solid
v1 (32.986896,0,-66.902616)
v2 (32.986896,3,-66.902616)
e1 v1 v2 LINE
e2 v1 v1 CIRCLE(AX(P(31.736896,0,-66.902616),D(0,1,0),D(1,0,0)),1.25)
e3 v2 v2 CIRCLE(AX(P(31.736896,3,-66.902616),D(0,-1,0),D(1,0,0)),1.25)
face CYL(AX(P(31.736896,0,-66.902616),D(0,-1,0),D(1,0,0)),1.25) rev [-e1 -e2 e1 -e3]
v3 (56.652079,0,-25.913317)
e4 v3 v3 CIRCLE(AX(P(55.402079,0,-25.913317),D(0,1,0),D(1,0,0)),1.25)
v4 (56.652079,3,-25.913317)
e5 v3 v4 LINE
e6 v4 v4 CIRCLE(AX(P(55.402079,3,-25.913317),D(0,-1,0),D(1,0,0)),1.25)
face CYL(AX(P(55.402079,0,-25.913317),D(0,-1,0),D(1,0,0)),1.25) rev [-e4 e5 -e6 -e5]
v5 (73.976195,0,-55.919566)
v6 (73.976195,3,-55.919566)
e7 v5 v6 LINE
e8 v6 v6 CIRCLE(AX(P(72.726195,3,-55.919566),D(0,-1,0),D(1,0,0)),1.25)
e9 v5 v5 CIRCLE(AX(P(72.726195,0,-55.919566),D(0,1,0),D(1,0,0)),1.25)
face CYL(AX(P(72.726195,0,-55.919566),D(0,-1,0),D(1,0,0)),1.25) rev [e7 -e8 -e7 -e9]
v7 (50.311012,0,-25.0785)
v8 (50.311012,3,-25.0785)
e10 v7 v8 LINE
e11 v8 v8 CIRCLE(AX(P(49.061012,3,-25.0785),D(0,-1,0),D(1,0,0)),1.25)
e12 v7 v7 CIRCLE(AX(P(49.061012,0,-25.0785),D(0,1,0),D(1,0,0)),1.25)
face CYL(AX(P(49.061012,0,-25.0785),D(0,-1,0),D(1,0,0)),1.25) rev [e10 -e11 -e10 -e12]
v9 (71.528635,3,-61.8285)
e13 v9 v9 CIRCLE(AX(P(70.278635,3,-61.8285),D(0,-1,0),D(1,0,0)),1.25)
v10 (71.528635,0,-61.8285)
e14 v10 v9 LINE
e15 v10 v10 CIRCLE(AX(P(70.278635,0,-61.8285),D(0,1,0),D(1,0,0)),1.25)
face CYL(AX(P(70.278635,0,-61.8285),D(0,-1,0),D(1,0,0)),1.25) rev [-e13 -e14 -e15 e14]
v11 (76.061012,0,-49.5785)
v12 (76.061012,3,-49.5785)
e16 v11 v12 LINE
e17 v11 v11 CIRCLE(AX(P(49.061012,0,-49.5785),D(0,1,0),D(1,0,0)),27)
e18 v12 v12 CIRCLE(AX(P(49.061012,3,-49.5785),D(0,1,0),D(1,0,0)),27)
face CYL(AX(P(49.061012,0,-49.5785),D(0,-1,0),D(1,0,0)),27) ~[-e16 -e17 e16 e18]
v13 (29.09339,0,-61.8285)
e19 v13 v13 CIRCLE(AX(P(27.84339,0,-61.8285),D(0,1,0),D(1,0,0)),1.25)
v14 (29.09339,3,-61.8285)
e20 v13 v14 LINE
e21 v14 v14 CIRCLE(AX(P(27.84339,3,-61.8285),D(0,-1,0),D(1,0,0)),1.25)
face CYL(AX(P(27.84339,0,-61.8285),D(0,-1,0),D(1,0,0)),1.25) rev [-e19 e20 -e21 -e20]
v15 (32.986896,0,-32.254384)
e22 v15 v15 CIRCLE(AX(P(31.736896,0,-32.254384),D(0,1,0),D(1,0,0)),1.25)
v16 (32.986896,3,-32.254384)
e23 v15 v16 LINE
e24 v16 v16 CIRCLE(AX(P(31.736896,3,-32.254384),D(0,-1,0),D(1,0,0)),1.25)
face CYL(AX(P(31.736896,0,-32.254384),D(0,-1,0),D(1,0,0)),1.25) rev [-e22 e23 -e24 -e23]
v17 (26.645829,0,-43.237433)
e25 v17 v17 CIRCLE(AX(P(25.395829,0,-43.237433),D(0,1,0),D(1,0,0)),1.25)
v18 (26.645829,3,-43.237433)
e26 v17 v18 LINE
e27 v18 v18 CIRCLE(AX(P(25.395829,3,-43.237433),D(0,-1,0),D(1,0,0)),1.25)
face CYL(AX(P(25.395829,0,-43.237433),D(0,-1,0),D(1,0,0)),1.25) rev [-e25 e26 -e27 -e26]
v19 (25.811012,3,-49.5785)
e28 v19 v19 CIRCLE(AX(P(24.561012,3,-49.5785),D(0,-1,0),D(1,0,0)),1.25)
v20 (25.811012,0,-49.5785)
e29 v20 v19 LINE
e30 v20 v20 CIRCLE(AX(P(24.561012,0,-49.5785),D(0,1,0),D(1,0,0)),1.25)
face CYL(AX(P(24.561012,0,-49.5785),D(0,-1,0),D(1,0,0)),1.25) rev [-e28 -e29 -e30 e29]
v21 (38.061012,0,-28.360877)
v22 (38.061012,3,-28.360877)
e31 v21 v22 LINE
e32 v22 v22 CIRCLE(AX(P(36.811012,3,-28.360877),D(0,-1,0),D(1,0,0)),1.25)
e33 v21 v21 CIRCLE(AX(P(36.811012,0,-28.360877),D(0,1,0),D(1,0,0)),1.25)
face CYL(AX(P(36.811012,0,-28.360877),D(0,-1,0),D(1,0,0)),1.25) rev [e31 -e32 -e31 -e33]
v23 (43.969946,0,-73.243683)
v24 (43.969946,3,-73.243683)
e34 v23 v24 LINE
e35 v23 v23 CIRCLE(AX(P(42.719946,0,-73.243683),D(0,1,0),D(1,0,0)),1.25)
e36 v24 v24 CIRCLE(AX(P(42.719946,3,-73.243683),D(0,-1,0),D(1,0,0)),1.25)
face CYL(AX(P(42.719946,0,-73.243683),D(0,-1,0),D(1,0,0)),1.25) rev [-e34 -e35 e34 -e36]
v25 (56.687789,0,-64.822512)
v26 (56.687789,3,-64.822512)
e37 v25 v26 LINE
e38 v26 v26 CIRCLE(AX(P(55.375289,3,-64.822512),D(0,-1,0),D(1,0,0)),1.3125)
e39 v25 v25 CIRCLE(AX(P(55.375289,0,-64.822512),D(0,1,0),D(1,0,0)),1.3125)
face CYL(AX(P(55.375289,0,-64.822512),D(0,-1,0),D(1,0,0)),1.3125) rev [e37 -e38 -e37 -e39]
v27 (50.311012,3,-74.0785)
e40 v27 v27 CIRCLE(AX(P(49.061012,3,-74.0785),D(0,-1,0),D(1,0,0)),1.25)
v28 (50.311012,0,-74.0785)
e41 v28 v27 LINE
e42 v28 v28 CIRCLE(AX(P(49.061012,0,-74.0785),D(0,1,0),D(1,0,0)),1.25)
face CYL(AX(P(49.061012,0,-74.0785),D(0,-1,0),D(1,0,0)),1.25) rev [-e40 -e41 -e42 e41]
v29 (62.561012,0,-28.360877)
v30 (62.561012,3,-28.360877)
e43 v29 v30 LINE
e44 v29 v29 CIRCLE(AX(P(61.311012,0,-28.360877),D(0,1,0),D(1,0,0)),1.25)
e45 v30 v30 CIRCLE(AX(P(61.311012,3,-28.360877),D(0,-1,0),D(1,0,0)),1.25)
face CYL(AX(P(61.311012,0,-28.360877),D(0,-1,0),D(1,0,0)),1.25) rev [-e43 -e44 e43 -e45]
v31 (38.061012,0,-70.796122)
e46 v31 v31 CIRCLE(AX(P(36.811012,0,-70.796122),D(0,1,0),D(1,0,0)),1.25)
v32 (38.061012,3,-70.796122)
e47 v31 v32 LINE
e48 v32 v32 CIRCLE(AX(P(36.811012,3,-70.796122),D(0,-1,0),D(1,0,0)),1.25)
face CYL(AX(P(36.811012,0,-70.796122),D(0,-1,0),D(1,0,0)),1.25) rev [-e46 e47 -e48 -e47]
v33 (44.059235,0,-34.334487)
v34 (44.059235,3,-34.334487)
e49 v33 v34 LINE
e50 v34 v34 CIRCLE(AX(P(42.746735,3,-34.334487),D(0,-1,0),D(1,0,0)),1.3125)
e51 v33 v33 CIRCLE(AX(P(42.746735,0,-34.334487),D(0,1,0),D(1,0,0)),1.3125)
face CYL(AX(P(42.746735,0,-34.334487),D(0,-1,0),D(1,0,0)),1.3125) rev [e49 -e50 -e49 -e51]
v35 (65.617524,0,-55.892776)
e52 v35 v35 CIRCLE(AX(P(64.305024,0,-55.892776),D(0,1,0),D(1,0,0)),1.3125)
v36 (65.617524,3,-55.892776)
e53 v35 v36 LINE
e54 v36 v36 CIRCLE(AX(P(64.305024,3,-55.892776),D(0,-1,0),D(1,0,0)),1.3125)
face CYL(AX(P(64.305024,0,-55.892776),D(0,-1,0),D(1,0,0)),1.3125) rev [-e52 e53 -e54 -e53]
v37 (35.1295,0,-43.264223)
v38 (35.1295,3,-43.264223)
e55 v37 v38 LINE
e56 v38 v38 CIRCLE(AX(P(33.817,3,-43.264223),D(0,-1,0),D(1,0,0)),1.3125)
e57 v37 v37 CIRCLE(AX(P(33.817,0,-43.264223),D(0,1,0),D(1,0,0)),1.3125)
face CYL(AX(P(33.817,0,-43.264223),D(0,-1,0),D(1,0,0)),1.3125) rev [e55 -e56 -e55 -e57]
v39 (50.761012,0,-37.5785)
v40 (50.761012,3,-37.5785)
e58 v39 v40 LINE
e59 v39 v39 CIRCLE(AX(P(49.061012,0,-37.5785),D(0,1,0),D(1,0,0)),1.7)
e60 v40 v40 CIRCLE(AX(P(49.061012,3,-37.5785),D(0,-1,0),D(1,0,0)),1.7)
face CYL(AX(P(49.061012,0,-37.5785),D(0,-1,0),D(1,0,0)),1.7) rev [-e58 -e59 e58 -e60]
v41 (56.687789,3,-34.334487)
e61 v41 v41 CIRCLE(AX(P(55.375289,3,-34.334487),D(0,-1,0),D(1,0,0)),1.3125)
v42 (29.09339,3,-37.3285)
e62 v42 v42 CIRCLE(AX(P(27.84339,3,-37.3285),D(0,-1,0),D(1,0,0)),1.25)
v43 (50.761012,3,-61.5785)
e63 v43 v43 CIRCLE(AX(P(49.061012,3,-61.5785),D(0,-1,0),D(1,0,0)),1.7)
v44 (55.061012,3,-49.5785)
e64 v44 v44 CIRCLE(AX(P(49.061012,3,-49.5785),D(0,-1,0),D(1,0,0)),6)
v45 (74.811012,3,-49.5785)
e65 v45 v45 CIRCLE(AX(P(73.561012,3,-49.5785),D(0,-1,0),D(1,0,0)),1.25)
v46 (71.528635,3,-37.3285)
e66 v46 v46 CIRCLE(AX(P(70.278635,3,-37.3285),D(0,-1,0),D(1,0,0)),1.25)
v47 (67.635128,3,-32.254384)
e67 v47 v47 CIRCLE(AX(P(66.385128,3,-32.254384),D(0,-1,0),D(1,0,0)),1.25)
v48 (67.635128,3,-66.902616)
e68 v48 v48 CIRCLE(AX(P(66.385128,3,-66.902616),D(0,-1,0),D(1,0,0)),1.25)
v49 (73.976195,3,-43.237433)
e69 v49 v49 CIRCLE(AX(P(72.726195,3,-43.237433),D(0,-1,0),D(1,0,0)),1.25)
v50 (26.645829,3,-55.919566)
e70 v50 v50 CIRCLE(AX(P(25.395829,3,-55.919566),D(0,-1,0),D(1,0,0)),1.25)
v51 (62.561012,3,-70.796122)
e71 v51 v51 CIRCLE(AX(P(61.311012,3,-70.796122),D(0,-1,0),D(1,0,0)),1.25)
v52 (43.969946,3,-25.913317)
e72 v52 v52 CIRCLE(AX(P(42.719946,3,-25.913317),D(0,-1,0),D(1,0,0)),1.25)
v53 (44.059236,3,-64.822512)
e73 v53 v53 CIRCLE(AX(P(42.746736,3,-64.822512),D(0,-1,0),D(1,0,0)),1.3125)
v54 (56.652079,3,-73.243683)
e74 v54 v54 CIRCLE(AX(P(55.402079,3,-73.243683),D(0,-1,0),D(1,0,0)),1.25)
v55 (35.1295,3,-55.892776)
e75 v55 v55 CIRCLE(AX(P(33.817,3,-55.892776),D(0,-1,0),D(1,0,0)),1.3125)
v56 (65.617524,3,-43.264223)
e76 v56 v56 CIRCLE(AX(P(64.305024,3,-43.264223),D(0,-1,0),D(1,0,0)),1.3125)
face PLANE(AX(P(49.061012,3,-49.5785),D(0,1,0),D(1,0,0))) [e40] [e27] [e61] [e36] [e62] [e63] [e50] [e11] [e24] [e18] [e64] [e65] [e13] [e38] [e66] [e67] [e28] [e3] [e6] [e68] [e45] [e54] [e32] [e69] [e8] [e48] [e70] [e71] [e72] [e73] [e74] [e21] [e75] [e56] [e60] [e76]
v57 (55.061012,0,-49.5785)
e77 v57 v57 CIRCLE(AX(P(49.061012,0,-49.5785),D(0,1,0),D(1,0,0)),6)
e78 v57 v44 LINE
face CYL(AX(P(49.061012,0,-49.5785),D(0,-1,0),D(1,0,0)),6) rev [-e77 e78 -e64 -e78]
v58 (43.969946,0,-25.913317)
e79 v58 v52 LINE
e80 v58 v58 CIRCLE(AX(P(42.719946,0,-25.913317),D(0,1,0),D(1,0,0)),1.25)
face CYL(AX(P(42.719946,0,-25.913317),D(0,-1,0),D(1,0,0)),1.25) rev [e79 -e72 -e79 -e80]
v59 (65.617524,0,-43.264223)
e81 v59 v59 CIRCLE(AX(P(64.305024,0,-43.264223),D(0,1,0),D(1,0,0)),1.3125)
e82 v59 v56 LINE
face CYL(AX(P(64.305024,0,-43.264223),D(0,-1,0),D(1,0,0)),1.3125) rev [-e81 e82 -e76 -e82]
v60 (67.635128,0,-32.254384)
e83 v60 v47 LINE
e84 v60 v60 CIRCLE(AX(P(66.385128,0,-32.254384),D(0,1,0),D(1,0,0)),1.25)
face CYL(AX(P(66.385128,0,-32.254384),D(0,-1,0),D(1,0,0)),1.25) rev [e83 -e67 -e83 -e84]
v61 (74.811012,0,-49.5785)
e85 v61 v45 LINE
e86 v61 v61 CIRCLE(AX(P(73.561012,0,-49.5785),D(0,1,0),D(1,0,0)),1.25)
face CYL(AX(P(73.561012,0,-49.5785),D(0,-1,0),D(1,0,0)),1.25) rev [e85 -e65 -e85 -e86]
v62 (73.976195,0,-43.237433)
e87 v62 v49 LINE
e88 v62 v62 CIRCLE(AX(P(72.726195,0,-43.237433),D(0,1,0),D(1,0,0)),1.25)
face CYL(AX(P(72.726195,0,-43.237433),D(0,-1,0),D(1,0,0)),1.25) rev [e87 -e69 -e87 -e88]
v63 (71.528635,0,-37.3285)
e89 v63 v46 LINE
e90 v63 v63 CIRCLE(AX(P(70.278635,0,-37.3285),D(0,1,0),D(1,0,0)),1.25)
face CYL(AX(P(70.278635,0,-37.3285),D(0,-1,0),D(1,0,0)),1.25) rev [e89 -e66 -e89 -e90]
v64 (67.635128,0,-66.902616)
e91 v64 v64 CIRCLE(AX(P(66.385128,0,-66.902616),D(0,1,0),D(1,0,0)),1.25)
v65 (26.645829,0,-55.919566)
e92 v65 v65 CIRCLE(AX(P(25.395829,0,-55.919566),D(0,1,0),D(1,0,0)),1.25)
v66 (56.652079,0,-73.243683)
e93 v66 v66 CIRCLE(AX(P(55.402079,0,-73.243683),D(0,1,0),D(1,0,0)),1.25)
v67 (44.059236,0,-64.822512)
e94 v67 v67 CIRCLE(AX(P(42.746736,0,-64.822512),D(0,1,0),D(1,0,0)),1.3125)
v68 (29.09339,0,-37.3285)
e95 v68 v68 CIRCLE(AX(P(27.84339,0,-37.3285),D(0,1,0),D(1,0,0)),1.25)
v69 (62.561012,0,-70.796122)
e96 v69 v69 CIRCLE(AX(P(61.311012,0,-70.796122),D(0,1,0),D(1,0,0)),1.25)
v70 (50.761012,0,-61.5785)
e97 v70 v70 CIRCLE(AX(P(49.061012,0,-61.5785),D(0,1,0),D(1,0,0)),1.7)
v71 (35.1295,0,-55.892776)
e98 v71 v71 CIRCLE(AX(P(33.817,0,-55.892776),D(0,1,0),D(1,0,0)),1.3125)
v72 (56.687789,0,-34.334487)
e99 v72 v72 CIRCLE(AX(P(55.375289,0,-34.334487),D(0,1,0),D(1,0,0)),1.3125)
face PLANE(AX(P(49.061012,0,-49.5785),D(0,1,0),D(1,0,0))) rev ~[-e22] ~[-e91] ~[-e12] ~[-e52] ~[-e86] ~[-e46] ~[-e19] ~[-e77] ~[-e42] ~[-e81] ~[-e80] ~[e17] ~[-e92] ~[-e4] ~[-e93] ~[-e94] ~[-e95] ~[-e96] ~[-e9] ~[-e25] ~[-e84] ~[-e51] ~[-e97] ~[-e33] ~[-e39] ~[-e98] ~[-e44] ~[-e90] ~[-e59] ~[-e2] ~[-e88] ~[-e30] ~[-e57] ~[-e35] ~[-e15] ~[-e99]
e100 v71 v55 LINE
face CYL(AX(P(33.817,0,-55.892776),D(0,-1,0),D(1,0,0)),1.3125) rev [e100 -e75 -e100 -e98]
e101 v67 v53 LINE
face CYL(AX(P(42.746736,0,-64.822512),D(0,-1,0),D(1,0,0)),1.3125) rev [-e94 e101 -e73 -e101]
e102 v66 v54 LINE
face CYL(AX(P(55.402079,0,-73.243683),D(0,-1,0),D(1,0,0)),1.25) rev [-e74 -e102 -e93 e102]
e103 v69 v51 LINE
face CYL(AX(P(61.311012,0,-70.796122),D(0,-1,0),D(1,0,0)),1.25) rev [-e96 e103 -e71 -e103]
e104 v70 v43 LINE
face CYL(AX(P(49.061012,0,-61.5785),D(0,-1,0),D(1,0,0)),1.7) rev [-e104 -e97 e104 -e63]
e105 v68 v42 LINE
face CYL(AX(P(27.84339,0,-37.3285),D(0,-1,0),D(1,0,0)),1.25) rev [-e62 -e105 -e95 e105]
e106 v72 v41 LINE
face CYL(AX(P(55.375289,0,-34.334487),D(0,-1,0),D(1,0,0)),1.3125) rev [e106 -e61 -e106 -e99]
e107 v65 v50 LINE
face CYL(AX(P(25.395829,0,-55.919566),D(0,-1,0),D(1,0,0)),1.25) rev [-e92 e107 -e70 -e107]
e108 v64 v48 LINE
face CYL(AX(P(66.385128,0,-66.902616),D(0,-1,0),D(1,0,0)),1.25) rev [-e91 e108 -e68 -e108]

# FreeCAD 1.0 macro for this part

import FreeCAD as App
import Part
import Sketcher
Q = App.Units.Quantity

doc = App.newDocument("Part")
body = doc.addObject("PartDesign::Body", "Body")

sketch1 = doc.addObject("Sketcher::SketchObject", "Sketch")
body.addObject(sketch1)
sketch1.AttachmentSupport = (doc.XZ_Plane, [""])
sketch1.MapMode = "FlatFace"
sketch1.addGeometry(Part.Circle(App.Vector(49, -50, 0), App.Vector(0, 0, 1), 27), False)
sketch1.addConstraint(Sketcher.Constraint("Diameter", 0, Q("54 mm")))
sketch1.addConstraint(Sketcher.Constraint("DistanceY", 0, 3, -1, 1, Q("49.5785 mm")))
sketch1.addConstraint(Sketcher.Constraint("DistanceX", -1, 1, 0, 3, Q("49.061012 mm")))
pad1 = doc.addObject("PartDesign::Pad", "Pad")
body.addObject(pad1)
pad1.Profile = sketch1
pad1.Length = 3
pad1.Reversed = True

sketch2 = doc.addObject("Sketcher::SketchObject", "Sketch001")
body.addObject(sketch2)
sketch2.AttachmentSupport = (doc.XZ_Plane, [""])
sketch2.MapMode = "FlatFace"
sketch2.addGeometry(Part.Circle(App.Vector(49, -50, 0), App.Vector(0, 0, 1), 6), False)
sketch2.addConstraint(Sketcher.Constraint("Diameter", 0, Q("12 mm")))
sketch2.addConstraint(Sketcher.Constraint("DistanceY", 0, 3, -1, 1, Q("49.5785 mm")))
sketch2.addConstraint(Sketcher.Constraint("DistanceX", -1, 1, 0, 3, Q("49.061012 mm")))
pocket1 = doc.addObject("PartDesign::Pocket", "Pocket")
body.addObject(pocket1)
pocket1.Profile = sketch2
pocket1.Type = "UpToFirst"

sketch3 = doc.addObject("Sketcher::SketchObject", "Sketch002")
body.addObject(sketch3)
sketch3.AttachmentSupport = (doc.XZ_Plane, [""])
sketch3.MapMode = "FlatFace"
sketch3.addGeometry(Part.Circle(App.Vector(49.1, -61.6, 0), App.Vector(0, 0, 1), 1.7), False)
sketch3.addConstraint(Sketcher.Constraint("Diameter", 0, Q("3.4 mm")))
sketch3.addConstraint(Sketcher.Constraint("DistanceY", 0, 3, -1, 1, Q("61.5785 mm")))
sketch3.addConstraint(Sketcher.Constraint("DistanceX", -1, 1, 0, 3, Q("49.061012 mm")))
pocket2 = doc.addObject("PartDesign::Pocket", "Pocket001")
body.addObject(pocket2)
pocket2.Profile = sketch3
pocket2.Type = "UpToFirst"

sketch4 = doc.addObject("Sketcher::SketchObject", "Sketch003")
body.addObject(sketch4)
sketch4.AttachmentSupport = (doc.XZ_Plane, [""])
sketch4.MapMode = "FlatFace"
sketch4.addGeometry(Part.Circle(App.Vector(49.1, -37.6, 0), App.Vector(0, 0, 1), 1.7), False)
sketch4.addConstraint(Sketcher.Constraint("Diameter", 0, Q("3.4 mm")))
sketch4.addConstraint(Sketcher.Constraint("DistanceY", 0, 3, -1, 1, Q("37.5785 mm")))
sketch4.addConstraint(Sketcher.Constraint("DistanceX", -1, 1, 0, 3, Q("49.061012 mm")))
pocket3 = doc.addObject("PartDesign::Pocket", "Pocket002")
body.addObject(pocket3)
pocket3.Profile = sketch4
pocket3.Type = "UpToFirst"

sketch5 = doc.addObject("Sketcher::SketchObject", "Sketch004")
body.addObject(sketch5)
sketch5.AttachmentSupport = (doc.XZ_Plane, [""])
sketch5.MapMode = "FlatFace"
sketch5.addGeometry(Part.Circle(App.Vector(49.1, -74.1, 0), App.Vector(0, 0, 1), 1.2), False)
sketch5.addConstraint(Sketcher.Constraint("Diameter", 0, Q("2.5 mm")))
sketch5.addConstraint(Sketcher.Constraint("DistanceY", 0, 3, -1, 1, Q("74.0785 mm")))
sketch5.addConstraint(Sketcher.Constraint("DistanceX", -1, 1, 0, 3, Q("49.061012 mm")))
pocket4 = doc.addObject("PartDesign::Pocket", "Pocket003")
body.addObject(pocket4)
pocket4.Profile = sketch5
pocket4.Type = "UpToFirst"

sketch6 = doc.addObject("Sketcher::SketchObject", "Sketch005")
body.addObject(sketch6)
sketch6.AttachmentSupport = (doc.XZ_Plane, [""])
sketch6.MapMode = "FlatFace"
sketch6.addGeometry(Part.Circle(App.Vector(55.4, -73.2, 0), App.Vector(0, 0, 1), 1.2), False)
sketch6.addConstraint(Sketcher.Constraint("Diameter", 0, Q("2.5 mm")))
sketch6.addConstraint(Sketcher.Constraint("DistanceX", -1, 1, 0, 3, Q("55.402079 mm")))
sketch6.addConstraint(Sketcher.Constraint("DistanceY", 0, 3, -1, 1, Q("73.243683 mm")))
pocket5 = doc.addObject("PartDesign::Pocket", "Pocket004")
body.addObject(pocket5)
pocket5.Profile = sketch6
pocket5.Type = "UpToFirst"

sketch7 = doc.addObject("Sketcher::SketchObject", "Sketch006")
body.addObject(sketch7)
sketch7.AttachmentSupport = (doc.XZ_Plane, [""])
sketch7.MapMode = "FlatFace"
sketch7.addGeometry(Part.Circle(App.Vector(61.3, -70.8, 0), App.Vector(0, 0, 1), 1.2), False)
sketch7.addConstraint(Sketcher.Constraint("Diameter", 0, Q("2.5 mm")))
sketch7.addConstraint(Sketcher.Constraint("DistanceX", -1, 1, 0, 3, Q("61.311012 mm")))
sketch7.addConstraint(Sketcher.Constraint("DistanceY", 0, 3, -1, 1, Q("70.796122 mm")))
pocket6 = doc.addObject("PartDesign::Pocket", "Pocket005")
body.addObject(pocket6)
pocket6.Profile = sketch7
pocket6.Type = "UpToFirst"

sketch8 = doc.addObject("Sketcher::SketchObject", "Sketch007")
body.addObject(sketch8)
sketch8.AttachmentSupport = (doc.XZ_Plane, [""])
sketch8.MapMode = "FlatFace"
sketch8.addGeometry(Part.Circle(App.Vector(66.4, -66.9, 0), App.Vector(0, 0, 1), 1.2), False)
sketch8.addConstraint(Sketcher.Constraint("Diameter", 0, Q("2.5 mm")))
sketch8.addConstraint(Sketcher.Constraint("DistanceX", -1, 1, 0, 3, Q("66.385128 mm")))
sketch8.addConstraint(Sketcher.Constraint("DistanceY", 0, 3, -1, 1, Q("66.902616 mm")))
pocket7 = doc.addObject("PartDesign::Pocket", "Pocket006")
body.addObject(pocket7)
pocket7.Profile = sketch8
pocket7.Type = "UpToFirst"

sketch9 = doc.addObject("Sketcher::SketchObject", "Sketch008")
body.addObject(sketch9)
sketch9.AttachmentSupport = (doc.XZ_Plane, [""])
sketch9.MapMode = "FlatFace"
sketch9.addGeometry(Part.Circle(App.Vector(70.3, -61.8, 0), App.Vector(0, 0, 1), 1.2), False)
sketch9.addConstraint(Sketcher.Constraint("Diameter", 0, Q("2.5 mm")))
sketch9.addConstraint(Sketcher.Constraint("DistanceY", 0, 3, -1, 1, Q("61.8285 mm")))
sketch9.addConstraint(Sketcher.Constraint("DistanceX", -1, 1, 0, 3, Q("70.278635 mm")))
pocket8 = doc.addObject("PartDesign::Pocket", "Pocket007")
body.addObject(pocket8)
pocket8.Profile = sketch9
pocket8.Type = "UpToFirst"

sketch10 = doc.addObject("Sketcher::SketchObject", "Sketch009")
body.addObject(sketch10)
sketch10.AttachmentSupport = (doc.XZ_Plane, [""])
sketch10.MapMode = "FlatFace"
sketch10.addGeometry(Part.Circle(App.Vector(72.7, -55.9, 0), App.Vector(0, 0, 1), 1.2), False)
sketch10.addConstraint(Sketcher.Constraint("Diameter", 0, Q("2.5 mm")))
sketch10.addConstraint(Sketcher.Constraint("DistanceX", -1, 1, 0, 3, Q("72.726195 mm")))
sketch10.addConstraint(Sketcher.Constraint("DistanceY", 0, 3, -1, 1, Q("55.919566 mm")))
pocket9 = doc.addObject("PartDesign::Pocket", "Pocket008")
body.addObject(pocket9)
pocket9.Profile = sketch10
pocket9.Type = "UpToFirst"

sketch11 = doc.addObject("Sketcher::SketchObject", "Sketch010")
body.addObject(sketch11)
sketch11.AttachmentSupport = (doc.XZ_Plane, [""])
sketch11.MapMode = "FlatFace"
sketch11.addGeometry(Part.Circle(App.Vector(73.6, -49.6, 0), App.Vector(0, 0, 1), 1.2), False)
sketch11.addConstraint(Sketcher.Constraint("Diameter", 0, Q("2.5 mm")))
sketch11.addConstraint(Sketcher.Constraint("DistanceY", 0, 3, -1, 1, Q("49.5785 mm")))
sketch11.addConstraint(Sketcher.Constraint("DistanceX", -1, 1, 0, 3, Q("73.561012 mm")))
pocket10 = doc.addObject("PartDesign::Pocket", "Pocket009")
body.addObject(pocket10)
pocket10.Profile = sketch11
pocket10.Type = "UpToFirst"

sketch12 = doc.addObject("Sketcher::SketchObject", "Sketch011")
body.addObject(sketch12)
sketch12.AttachmentSupport = (doc.XZ_Plane, [""])
sketch12.MapMode = "FlatFace"
sketch12.addGeometry(Part.Circle(App.Vector(72.7, -43.2, 0), App.Vector(0, 0, 1), 1.2), False)
sketch12.addConstraint(Sketcher.Constraint("Diameter", 0, Q("2.5 mm")))
sketch12.addConstraint(Sketcher.Constraint("DistanceX", -1, 1, 0, 3, Q("72.726195 mm")))
sketch12.addConstraint(Sketcher.Constraint("DistanceY", 0, 3, -1, 1, Q("43.237433 mm")))
pocket11 = doc.addObject("PartDesign::Pocket", "Pocket010")
body.addObject(pocket11)
pocket11.Profile = sketch12
pocket11.Type = "UpToFirst"

sketch13 = doc.addObject("Sketcher::SketchObject", "Sketch012")
body.addObject(sketch13)
sketch13.AttachmentSupport = (doc.XZ_Plane, [""])
sketch13.MapMode = "FlatFace"
sketch13.addGeometry(Part.Circle(App.Vector(70.3, -37.3, 0), App.Vector(0, 0, 1), 1.2), False)
sketch13.addConstraint(Sketcher.Constraint("Diameter", 0, Q("2.5 mm")))
sketch13.addConstraint(Sketcher.Constraint("DistanceY", 0, 3, -1, 1, Q("37.3285 mm")))
sketch13.addConstraint(Sketcher.Constraint("DistanceX", -1, 1, 0, 3, Q("70.278635 mm")))
pocket12 = doc.addObject("PartDesign::Pocket", "Pocket011")
body.addObject(pocket12)
pocket12.Profile = sketch13
pocket12.Type = "UpToFirst"

sketch14 = doc.addObject("Sketcher::SketchObject", "Sketch013")
body.addObject(sketch14)
sketch14.AttachmentSupport = (doc.XZ_Plane, [""])
sketch14.MapMode = "FlatFace"
sketch14.addGeometry(Part.Circle(App.Vector(66.4, -32.3, 0), App.Vector(0, 0, 1), 1.2), False)
sketch14.addConstraint(Sketcher.Constraint("Diameter", 0, Q("2.5 mm")))
sketch14.addConstraint(Sketcher.Constraint("DistanceX", -1, 1, 0, 3, Q("66.385128 mm")))
sketch14.addConstraint(Sketcher.Constraint("DistanceY", 0, 3, -1, 1, Q("32.254384 mm")))
pocket13 = doc.addObject("PartDesign::Pocket", "Pocket012")
body.addObject(pocket13)
pocket13.Profile = sketch14
pocket13.Type = "UpToFirst"

sketch15 = doc.addObject("Sketcher::SketchObject", "Sketch014")
body.addObject(sketch15)
sketch15.AttachmentSupport = (doc.XZ_Plane, [""])
sketch15.MapMode = "FlatFace"
sketch15.addGeometry(Part.Circle(App.Vector(61.3, -28.4, 0), App.Vector(0, 0, 1), 1.2), False)
sketch15.addConstraint(Sketcher.Constraint("Diameter", 0, Q("2.5 mm")))
sketch15.addConstraint(Sketcher.Constraint("DistanceX", -1, 1, 0, 3, Q("61.311012 mm")))
sketch15.addConstraint(Sketcher.Constraint("DistanceY", 0, 3, -1, 1, Q("28.360877 mm")))
pocket14 = doc.addObject("PartDesign::Pocket", "Pocket013")
body.addObject(pocket14)
pocket14.Profile = sketch15
pocket14.Type = "UpToFirst"

sketch16 = doc.addObject("Sketcher::SketchObject", "Sketch015")
body.addObject(sketch16)
sketch16.AttachmentSupport = (doc.XZ_Plane, [""])
sketch16.MapMode = "FlatFace"
sketch16.addGeometry(Part.Circle(App.Vector(55.4, -25.9, 0), App.Vector(0, 0, 1), 1.2), False)
sketch16.addConstraint(Sketcher.Constraint("Diameter", 0, Q("2.5 mm")))
sketch16.addConstraint(Sketcher.Constraint("DistanceX", -1, 1, 0, 3, Q("55.402079 mm")))
sketch16.addConstraint(Sketcher.Constraint("DistanceY", 0, 3, -1, 1, Q("25.913317 mm")))
pocket15 = doc.addObject("PartDesign::Pocket", "Pocket014")
body.addObject(pocket15)
pocket15.Profile = sketch16
pocket15.Type = "UpToFirst"

sketch17 = doc.addObject("Sketcher::SketchObject", "Sketch016")
body.addObject(sketch17)
sketch17.AttachmentSupport = (doc.XZ_Plane, [""])
sketch17.MapMode = "FlatFace"
sketch17.addGeometry(Part.Circle(App.Vector(49.1, -25.1, 0), App.Vector(0, 0, 1), 1.2), False)
sketch17.addConstraint(Sketcher.Constraint("Diameter", 0, Q("2.5 mm")))
sketch17.addConstraint(Sketcher.Constraint("DistanceY", 0, 3, -1, 1, Q("25.0785 mm")))
sketch17.addConstraint(Sketcher.Constraint("DistanceX", -1, 1, 0, 3, Q("49.061012 mm")))
pocket16 = doc.addObject("PartDesign::Pocket", "Pocket015")
body.addObject(pocket16)
pocket16.Profile = sketch17
pocket16.Type = "UpToFirst"

sketch18 = doc.addObject("Sketcher::SketchObject", "Sketch017")
body.addObject(sketch18)
sketch18.AttachmentSupport = (doc.XZ_Plane, [""])
sketch18.MapMode = "FlatFace"
sketch18.addGeometry(Part.Circle(App.Vector(42.7, -25.9, 0), App.Vector(0, 0, 1), 1.2), False)
sketch18.addConstraint(Sketcher.Constraint("Diameter", 0, Q("2.5 mm")))
sketch18.addConstraint(Sketcher.Constraint("DistanceX", -1, 1, 0, 3, Q("42.719946 mm")))
sketch18.addConstraint(Sketcher.Constraint("DistanceY", 0, 3, -1, 1, Q("25.913317 mm")))
pocket17 = doc.addObject("PartDesign::Pocket", "Pocket016")
body.addObject(pocket17)
pocket17.Profile = sketch18
pocket17.Type = "UpToFirst"

sketch19 = doc.addObject("Sketcher::SketchObject", "Sketch018")
body.addObject(sketch19)
sketch19.AttachmentSupport = (doc.XZ_Plane, [""])
sketch19.MapMode = "FlatFace"
sketch19.addGeometry(Part.Circle(App.Vector(36.8, -28.4, 0), App.Vector(0, 0, 1), 1.2), False)
sketch19.addConstraint(Sketcher.Constraint("Diameter", 0, Q("2.5 mm")))
sketch19.addConstraint(Sketcher.Constraint("DistanceX", -1, 1, 0, 3, Q("36.811012 mm")))
sketch19.addConstraint(Sketcher.Constraint("DistanceY", 0, 3, -1, 1, Q("28.360877 mm")))
pocket18 = doc.addObject("PartDesign::Pocket", "Pocket017")
body.addObject(pocket18)
pocket18.Profile = sketch19
pocket18.Type = "UpToFirst"

sketch20 = doc.addObject("Sketcher::SketchObject", "Sketch019")
body.addObject(sketch20)
sketch20.AttachmentSupport = (doc.XZ_Plane, [""])
sketch20.MapMode = "FlatFace"
sketch20.addGeometry(Part.Circle(App.Vector(31.7, -32.3, 0), App.Vector(0, 0, 1), 1.2), False)
sketch20.addConstraint(Sketcher.Constraint("Diameter", 0, Q("2.5 mm")))
sketch20.addConstraint(Sketcher.Constraint("DistanceX", -1, 1, 0, 3, Q("31.736896 mm")))
sketch20.addConstraint(Sketcher.Constraint("DistanceY", 0, 3, -1, 1, Q("32.254384 mm")))
pocket19 = doc.addObject("PartDesign::Pocket", "Pocket018")
body.addObject(pocket19)
pocket19.Profile = sketch20
pocket19.Type = "UpToFirst"

sketch21 = doc.addObject("Sketcher::SketchObject", "Sketch020")
body.addObject(sketch21)
sketch21.AttachmentSupport = (doc.XZ_Plane, [""])
sketch21.MapMode = "FlatFace"
sketch21.addGeometry(Part.Circle(App.Vector(27.8, -37.3, 0), App.Vector(0, 0, 1), 1.2), False)
sketch21.addConstraint(Sketcher.Constraint("Diameter", 0, Q("2.5 mm")))
sketch21.addConstraint(Sketcher.Constraint("DistanceY", 0, 3, -1, 1, Q("37.3285 mm")))
sketch21.addConstraint(Sketcher.Constraint("DistanceX", -1, 1, 0, 3, Q("27.84339 mm")))
pocket20 = doc.addObject("PartDesign::Pocket", "Pocket019")
body.addObject(pocket20)
pocket20.Profile = sketch21
pocket20.Type = "UpToFirst"

sketch22 = doc.addObject("Sketcher::SketchObject", "Sketch021")
body.addObject(sketch22)
sketch22.AttachmentSupport = (doc.XZ_Plane, [""])
sketch22.MapMode = "FlatFace"
sketch22.addGeometry(Part.Circle(App.Vector(25.4, -43.2, 0), App.Vector(0, 0, 1), 1.2), False)
sketch22.addConstraint(Sketcher.Constraint("Diameter", 0, Q("2.5 mm")))
sketch22.addConstraint(Sketcher.Constraint("DistanceX", -1, 1, 0, 3, Q("25.395829 mm")))
sketch22.addConstraint(Sketcher.Constraint("DistanceY", 0, 3, -1, 1, Q("43.237433 mm")))
pocket21 = doc.addObject("PartDesign::Pocket", "Pocket020")
body.addObject(pocket21)
pocket21.Profile = sketch22
pocket21.Type = "UpToFirst"

sketch23 = doc.addObject("Sketcher::SketchObject", "Sketch022")
body.addObject(sketch23)
sketch23.AttachmentSupport = (doc.XZ_Plane, [""])
sketch23.MapMode = "FlatFace"
sketch23.addGeometry(Part.Circle(App.Vector(24.6, -49.6, 0), App.Vector(0, 0, 1), 1.2), False)
sketch23.addConstraint(Sketcher.Constraint("Diameter", 0, Q("2.5 mm")))
sketch23.addConstraint(Sketcher.Constraint("DistanceY", 0, 3, -1, 1, Q("49.5785 mm")))
sketch23.addConstraint(Sketcher.Constraint("DistanceX", -1, 1, 0, 3, Q("24.561012 mm")))
pocket22 = doc.addObject("PartDesign::Pocket", "Pocket021")
body.addObject(pocket22)
pocket22.Profile = sketch23
pocket22.Type = "UpToFirst"

sketch24 = doc.addObject("Sketcher::SketchObject", "Sketch023")
body.addObject(sketch24)
sketch24.AttachmentSupport = (doc.XZ_Plane, [""])
sketch24.MapMode = "FlatFace"
sketch24.addGeometry(Part.Circle(App.Vector(25.4, -55.9, 0), App.Vector(0, 0, 1), 1.2), False)
sketch24.addConstraint(Sketcher.Constraint("Diameter", 0, Q("2.5 mm")))
sketch24.addConstraint(Sketcher.Constraint("DistanceX", -1, 1, 0, 3, Q("25.395829 mm")))
sketch24.addConstraint(Sketcher.Constraint("DistanceY", 0, 3, -1, 1, Q("55.919566 mm")))
pocket23 = doc.addObject("PartDesign::Pocket", "Pocket022")
body.addObject(pocket23)
pocket23.Profile = sketch24
pocket23.Type = "UpToFirst"

sketch25 = doc.addObject("Sketcher::SketchObject", "Sketch024")
body.addObject(sketch25)
sketch25.AttachmentSupport = (doc.XZ_Plane, [""])
sketch25.MapMode = "FlatFace"
sketch25.addGeometry(Part.Circle(App.Vector(27.8, -61.8, 0), App.Vector(0, 0, 1), 1.2), False)
sketch25.addConstraint(Sketcher.Constraint("Diameter", 0, Q("2.5 mm")))
sketch25.addConstraint(Sketcher.Constraint("DistanceY", 0, 3, -1, 1, Q("61.8285 mm")))
sketch25.addConstraint(Sketcher.Constraint("DistanceX", -1, 1, 0, 3, Q("27.84339 mm")))
pocket24 = doc.addObject("PartDesign::Pocket", "Pocket023")
body.addObject(pocket24)
pocket24.Profile = sketch25
pocket24.Type = "UpToFirst"

sketch26 = doc.addObject("Sketcher::SketchObject", "Sketch025")
body.addObject(sketch26)
sketch26.AttachmentSupport = (doc.XZ_Plane, [""])
sketch26.MapMode = "FlatFace"
sketch26.addGeometry(Part.Circle(App.Vector(31.7, -66.9, 0), App.Vector(0, 0, 1), 1.2), False)
sketch26.addConstraint(Sketcher.Constraint("Diameter", 0, Q("2.5 mm")))
sketch26.addConstraint(Sketcher.Constraint("DistanceX", -1, 1, 0, 3, Q("31.736896 mm")))
sketch26.addConstraint(Sketcher.Constraint("DistanceY", 0, 3, -1, 1, Q("66.902616 mm")))
pocket25 = doc.addObject("PartDesign::Pocket", "Pocket024")
body.addObject(pocket25)
pocket25.Profile = sketch26
pocket25.Type = "UpToFirst"

sketch27 = doc.addObject("Sketcher::SketchObject", "Sketch026")
body.addObject(sketch27)
sketch27.AttachmentSupport = (doc.XZ_Plane, [""])
sketch27.MapMode = "FlatFace"
sketch27.addGeometry(Part.Circle(App.Vector(36.8, -70.8, 0), App.Vector(0, 0, 1), 1.2), False)
sketch27.addConstraint(Sketcher.Constraint("Diameter", 0, Q("2.5 mm")))
sketch27.addConstraint(Sketcher.Constraint("DistanceX", -1, 1, 0, 3, Q("36.811012 mm")))
sketch27.addConstraint(Sketcher.Constraint("DistanceY", 0, 3, -1, 1, Q("70.796122 mm")))
pocket26 = doc.addObject("PartDesign::Pocket", "Pocket025")
body.addObject(pocket26)
pocket26.Profile = sketch27
pocket26.Type = "UpToFirst"

sketch28 = doc.addObject("Sketcher::SketchObject", "Sketch027")
body.addObject(sketch28)
sketch28.AttachmentSupport = (doc.XZ_Plane, [""])
sketch28.MapMode = "FlatFace"
sketch28.addGeometry(Part.Circle(App.Vector(42.7, -73.2, 0), App.Vector(0, 0, 1), 1.2), False)
sketch28.addConstraint(Sketcher.Constraint("Diameter", 0, Q("2.5 mm")))
sketch28.addConstraint(Sketcher.Constraint("DistanceX", -1, 1, 0, 3, Q("42.719946 mm")))
sketch28.addConstraint(Sketcher.Constraint("DistanceY", 0, 3, -1, 1, Q("73.243683 mm")))
pocket27 = doc.addObject("PartDesign::Pocket", "Pocket026")
body.addObject(pocket27)
pocket27.Profile = sketch28
pocket27.Type = "UpToFirst"

sketch29 = doc.addObject("Sketcher::SketchObject", "Sketch028")
body.addObject(sketch29)
sketch29.AttachmentSupport = (doc.XZ_Plane, [""])
sketch29.MapMode = "FlatFace"
sketch29.addGeometry(Part.Circle(App.Vector(55.4, -64.8, 0), App.Vector(0, 0, 1), 1.3), False)
sketch29.addConstraint(Sketcher.Constraint("Diameter", 0, Q("2.625 mm")))
sketch29.addConstraint(Sketcher.Constraint("DistanceX", -1, 1, 0, 3, Q("55.375289 mm")))
sketch29.addConstraint(Sketcher.Constraint("DistanceY", 0, 3, -1, 1, Q("64.822512 mm")))
pocket28 = doc.addObject("PartDesign::Pocket", "Pocket027")
body.addObject(pocket28)
pocket28.Profile = sketch29
pocket28.Type = "UpToFirst"

sketch30 = doc.addObject("Sketcher::SketchObject", "Sketch029")
body.addObject(sketch30)
sketch30.AttachmentSupport = (doc.XZ_Plane, [""])
sketch30.MapMode = "FlatFace"
sketch30.addGeometry(Part.Circle(App.Vector(64.3, -55.9, 0), App.Vector(0, 0, 1), 1.3), False)
sketch30.addConstraint(Sketcher.Constraint("Diameter", 0, Q("2.625 mm")))
sketch30.addConstraint(Sketcher.Constraint("DistanceX", -1, 1, 0, 3, Q("64.305024 mm")))
sketch30.addConstraint(Sketcher.Constraint("DistanceY", 0, 3, -1, 1, Q("55.892776 mm")))
pocket29 = doc.addObject("PartDesign::Pocket", "Pocket028")
body.addObject(pocket29)
pocket29.Profile = sketch30
pocket29.Type = "UpToFirst"

sketch31 = doc.addObject("Sketcher::SketchObject", "Sketch030")
body.addObject(sketch31)
sketch31.AttachmentSupport = (doc.XZ_Plane, [""])
sketch31.MapMode = "FlatFace"
sketch31.addGeometry(Part.Circle(App.Vector(64.3, -43.3, 0), App.Vector(0, 0, 1), 1.3), False)
sketch31.addConstraint(Sketcher.Constraint("Diameter", 0, Q("2.625 mm")))
sketch31.addConstraint(Sketcher.Constraint("DistanceX", -1, 1, 0, 3, Q("64.305024 mm")))
sketch31.addConstraint(Sketcher.Constraint("DistanceY", 0, 3, -1, 1, Q("43.264223 mm")))
pocket30 = doc.addObject("PartDesign::Pocket", "Pocket029")
body.addObject(pocket30)
pocket30.Profile = sketch31
pocket30.Type = "UpToFirst"

sketch32 = doc.addObject("Sketcher::SketchObject", "Sketch031")
body.addObject(sketch32)
sketch32.AttachmentSupport = (doc.XZ_Plane, [""])
sketch32.MapMode = "FlatFace"
sketch32.addGeometry(Part.Circle(App.Vector(55.4, -34.3, 0), App.Vector(0, 0, 1), 1.3), False)
sketch32.addConstraint(Sketcher.Constraint("Diameter", 0, Q("2.625 mm")))
sketch32.addConstraint(Sketcher.Constraint("DistanceX", -1, 1, 0, 3, Q("55.375289 mm")))
sketch32.addConstraint(Sketcher.Constraint("DistanceY", 0, 3, -1, 1, Q("34.334487 mm")))
pocket31 = doc.addObject("PartDesign::Pocket", "Pocket030")
body.addObject(pocket31)
pocket31.Profile = sketch32
pocket31.Type = "UpToFirst"

sketch33 = doc.addObject("Sketcher::SketchObject", "Sketch032")
body.addObject(sketch33)
sketch33.AttachmentSupport = (doc.XZ_Plane, [""])
sketch33.MapMode = "FlatFace"
sketch33.addGeometry(Part.Circle(App.Vector(42.7, -34.3, 0), App.Vector(0, 0, 1), 1.3), False)
sketch33.addConstraint(Sketcher.Constraint("Diameter", 0, Q("2.625 mm")))
sketch33.addConstraint(Sketcher.Constraint("DistanceX", -1, 1, 0, 3, Q("42.746735 mm")))
sketch33.addConstraint(Sketcher.Constraint("DistanceY", 0, 3, -1, 1, Q("34.334487 mm")))
pocket32 = doc.addObject("PartDesign::Pocket", "Pocket031")
body.addObject(pocket32)
pocket32.Profile = sketch33
pocket32.Type = "UpToFirst"

sketch34 = doc.addObject("Sketcher::SketchObject", "Sketch033")
body.addObject(sketch34)
sketch34.AttachmentSupport = (doc.XZ_Plane, [""])
sketch34.MapMode = "FlatFace"
sketch34.addGeometry(Part.Circle(App.Vector(33.8, -43.3, 0), App.Vector(0, 0, 1), 1.3), False)
sketch34.addConstraint(Sketcher.Constraint("Diameter", 0, Q("2.625 mm")))
sketch34.addConstraint(Sketcher.Constraint("DistanceX", -1, 1, 0, 3, Q("33.817 mm")))
sketch34.addConstraint(Sketcher.Constraint("DistanceY", 0, 3, -1, 1, Q("43.264223 mm")))
pocket33 = doc.addObject("PartDesign::Pocket", "Pocket032")
body.addObject(pocket33)
pocket33.Profile = sketch34
pocket33.Type = "UpToFirst"

sketch35 = doc.addObject("Sketcher::SketchObject", "Sketch034")
body.addObject(sketch35)
sketch35.AttachmentSupport = (doc.XZ_Plane, [""])
sketch35.MapMode = "FlatFace"
sketch35.addGeometry(Part.Circle(App.Vector(33.8, -55.9, 0), App.Vector(0, 0, 1), 1.3), False)
sketch35.addConstraint(Sketcher.Constraint("Diameter", 0, Q("2.625 mm")))
sketch35.addConstraint(Sketcher.Constraint("DistanceX", -1, 1, 0, 3, Q("33.817 mm")))
sketch35.addConstraint(Sketcher.Constraint("DistanceY", 0, 3, -1, 1, Q("55.892776 mm")))
pocket34 = doc.addObject("PartDesign::Pocket", "Pocket033")
body.addObject(pocket34)
pocket34.Profile = sketch35
pocket34.Type = "UpToFirst"

sketch36 = doc.addObject("Sketcher::SketchObject", "Sketch035")
body.addObject(sketch36)
sketch36.AttachmentSupport = (doc.XZ_Plane, [""])
sketch36.MapMode = "FlatFace"
sketch36.addGeometry(Part.Circle(App.Vector(42.7, -64.8, 0), App.Vector(0, 0, 1), 1.3), False)
sketch36.addConstraint(Sketcher.Constraint("Diameter", 0, Q("2.625 mm")))
sketch36.addConstraint(Sketcher.Constraint("DistanceY", 0, 3, -1, 1, Q("64.822512 mm")))
sketch36.addConstraint(Sketcher.Constraint("DistanceX", -1, 1, 0, 3, Q("42.746736 mm")))
pocket35 = doc.addObject("PartDesign::Pocket", "Pocket034")
body.addObject(pocket35)
pocket35.Profile = sketch36
pocket35.Type = "UpToFirst"

doc.recompute()
